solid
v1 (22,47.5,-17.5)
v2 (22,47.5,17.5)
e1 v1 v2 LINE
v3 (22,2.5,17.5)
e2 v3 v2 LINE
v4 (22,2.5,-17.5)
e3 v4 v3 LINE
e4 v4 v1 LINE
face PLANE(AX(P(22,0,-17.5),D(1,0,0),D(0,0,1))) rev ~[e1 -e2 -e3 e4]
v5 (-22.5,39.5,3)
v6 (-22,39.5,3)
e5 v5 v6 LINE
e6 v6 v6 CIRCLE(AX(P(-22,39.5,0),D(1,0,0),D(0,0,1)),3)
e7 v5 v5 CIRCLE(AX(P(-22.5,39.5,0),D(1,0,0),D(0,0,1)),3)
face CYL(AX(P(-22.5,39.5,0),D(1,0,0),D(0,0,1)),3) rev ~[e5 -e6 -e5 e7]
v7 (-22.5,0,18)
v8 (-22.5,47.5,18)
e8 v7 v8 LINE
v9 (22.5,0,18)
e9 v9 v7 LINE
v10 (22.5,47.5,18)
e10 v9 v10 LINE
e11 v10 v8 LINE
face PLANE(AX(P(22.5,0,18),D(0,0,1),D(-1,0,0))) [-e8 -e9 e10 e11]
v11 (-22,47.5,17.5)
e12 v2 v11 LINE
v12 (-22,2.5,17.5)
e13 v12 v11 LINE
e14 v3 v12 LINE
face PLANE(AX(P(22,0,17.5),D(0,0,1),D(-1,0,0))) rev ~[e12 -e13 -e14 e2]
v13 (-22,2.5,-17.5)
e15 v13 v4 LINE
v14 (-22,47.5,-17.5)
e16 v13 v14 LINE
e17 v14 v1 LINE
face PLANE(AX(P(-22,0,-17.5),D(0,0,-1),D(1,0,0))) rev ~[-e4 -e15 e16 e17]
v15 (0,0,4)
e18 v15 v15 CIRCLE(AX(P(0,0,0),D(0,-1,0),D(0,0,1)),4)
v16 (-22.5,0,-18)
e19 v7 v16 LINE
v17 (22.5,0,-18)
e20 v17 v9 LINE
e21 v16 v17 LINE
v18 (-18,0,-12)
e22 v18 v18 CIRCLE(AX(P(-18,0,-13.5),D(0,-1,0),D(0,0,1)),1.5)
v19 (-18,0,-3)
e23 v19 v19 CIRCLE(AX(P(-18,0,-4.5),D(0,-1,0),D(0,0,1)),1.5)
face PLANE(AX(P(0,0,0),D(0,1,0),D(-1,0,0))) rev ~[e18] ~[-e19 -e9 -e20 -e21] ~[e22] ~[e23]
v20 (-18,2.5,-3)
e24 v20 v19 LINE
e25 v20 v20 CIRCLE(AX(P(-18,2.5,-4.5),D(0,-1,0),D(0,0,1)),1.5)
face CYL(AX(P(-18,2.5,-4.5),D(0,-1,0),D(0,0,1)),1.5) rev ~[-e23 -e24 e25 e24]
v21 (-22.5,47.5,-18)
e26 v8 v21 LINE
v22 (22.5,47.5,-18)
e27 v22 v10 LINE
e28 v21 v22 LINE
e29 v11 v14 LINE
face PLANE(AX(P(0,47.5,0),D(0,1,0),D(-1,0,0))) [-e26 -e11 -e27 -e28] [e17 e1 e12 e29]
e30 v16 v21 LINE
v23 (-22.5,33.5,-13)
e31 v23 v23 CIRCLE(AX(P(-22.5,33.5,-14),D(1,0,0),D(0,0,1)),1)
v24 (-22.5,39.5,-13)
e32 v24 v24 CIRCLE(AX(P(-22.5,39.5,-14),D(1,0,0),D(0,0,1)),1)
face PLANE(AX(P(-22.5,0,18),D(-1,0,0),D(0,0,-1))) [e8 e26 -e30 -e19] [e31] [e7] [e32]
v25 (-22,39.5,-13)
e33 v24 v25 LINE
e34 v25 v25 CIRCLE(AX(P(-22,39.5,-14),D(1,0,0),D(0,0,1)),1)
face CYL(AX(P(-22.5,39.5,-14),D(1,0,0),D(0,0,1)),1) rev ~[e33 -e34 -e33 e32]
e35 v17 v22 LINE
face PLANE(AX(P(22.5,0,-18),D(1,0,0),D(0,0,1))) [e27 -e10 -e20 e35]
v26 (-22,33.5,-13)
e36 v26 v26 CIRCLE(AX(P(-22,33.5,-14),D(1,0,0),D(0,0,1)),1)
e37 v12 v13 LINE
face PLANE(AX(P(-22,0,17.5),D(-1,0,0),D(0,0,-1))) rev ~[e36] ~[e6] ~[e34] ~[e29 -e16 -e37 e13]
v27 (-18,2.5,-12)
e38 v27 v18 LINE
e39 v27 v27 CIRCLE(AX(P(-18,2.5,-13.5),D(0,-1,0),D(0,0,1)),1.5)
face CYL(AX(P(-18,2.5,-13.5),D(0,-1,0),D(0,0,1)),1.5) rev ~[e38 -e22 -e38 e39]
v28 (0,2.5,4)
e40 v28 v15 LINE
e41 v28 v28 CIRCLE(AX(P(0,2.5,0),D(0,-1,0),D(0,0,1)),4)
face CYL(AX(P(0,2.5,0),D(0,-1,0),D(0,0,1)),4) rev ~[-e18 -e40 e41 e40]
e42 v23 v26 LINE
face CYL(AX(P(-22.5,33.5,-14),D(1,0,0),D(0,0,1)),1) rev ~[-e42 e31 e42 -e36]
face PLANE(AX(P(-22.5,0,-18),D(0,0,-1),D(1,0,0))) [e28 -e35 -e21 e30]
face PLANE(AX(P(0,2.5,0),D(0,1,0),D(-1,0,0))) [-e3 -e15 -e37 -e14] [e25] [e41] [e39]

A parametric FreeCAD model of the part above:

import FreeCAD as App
import Part
import Sketcher

doc = App.newDocument("Part")
params = doc.addObject("Spreadsheet::Sheet", "Params")
for row, (alias, value) in enumerate([
    ("sketch1_width", "44 mm"),
    ("sketch1_height", "35 mm"),
    ("pad1_length", "2.5 mm"),
    ("sketch2_width", "45 mm"),
    ("sketch2_width2", "44 mm"),
    ("sketch2_height", "36 mm"),
    ("sketch2_height2", "35 mm"),
    ("pad2_length", "47.5 mm"),
    ("sketch3_diameter", "3 mm"),
    ("hole_diameter", "3 mm"),
    ("hole_depth", "8 mm"),
    ("sketch4_diameter", "8 mm"),
    ("hole2_diameter", "8 mm"),
    ("hole2_depth", "8 mm"),
    ("sketch5_diameter", "2 mm"),
    ("hole3_diameter", "2 mm"),
    ("hole3_depth", "8 mm"),
    ("sketch6_diameter", "6 mm"),
    ("hole4_diameter", "6 mm"),
    ("hole4_depth", "8 mm"),
], start=1):
    params.set(f"A{row}", alias)
    params.set(f"B{row}", "=" + value)
    params.setAlias(f"B{row}", alias)

body = doc.addObject("PartDesign::Body", "Body")

# Sketch on XZ plane
sketch1 = body.newObject("Sketcher::SketchObject", "Sketch")
sketch1.AttachmentSupport = (doc.getObject("XZ_Plane"), [""])
sketch1.MapMode = "FlatFace"
sketch1.addGeometry([
    Part.LineSegment(App.Vector(-22, 18, 0), App.Vector(22, 18, 0)),
    Part.LineSegment(App.Vector(22, 18, 0), App.Vector(22, -18, 0)),
    Part.LineSegment(App.Vector(22, -18, 0), App.Vector(-22, -18, 0)),
    Part.LineSegment(App.Vector(-22, -18, 0), App.Vector(-22, 18, 0)),
], False)
sketch1.addConstraint([
    Sketcher.Constraint("Coincident", 0, 2, 1, 1),
    Sketcher.Constraint("Coincident", 1, 2, 2, 1),
    Sketcher.Constraint("Coincident", 2, 2, 3, 1),
    Sketcher.Constraint("Coincident", 3, 2, 0, 1),
    Sketcher.Constraint("Horizontal", 0),
    Sketcher.Constraint("Vertical", 1),
    Sketcher.Constraint("Horizontal", 2),
    Sketcher.Constraint("Vertical", 3),
    Sketcher.Constraint("Symmetric", 0, 2, 2, 2, -1, 1),
    Sketcher.Constraint("DistanceX", 0, 1, 0, 2, 44.0),
    Sketcher.Constraint("DistanceY", 1, 2, 1, 1, 35.0),
])
sketch1.setExpression("Constraints[9]", "Params.sketch1_width")
sketch1.setExpression("Constraints[10]", "Params.sketch1_height")
pad1 = body.newObject("PartDesign::Pad", "Pad")
pad1.Profile = sketch1
pad1.setExpression("Length", "Params.pad1_length")
pad1.Reversed = True

# Sketch on XZ plane
sketch2 = body.newObject("Sketcher::SketchObject", "Sketch001")
sketch2.AttachmentSupport = (doc.getObject("XZ_Plane"), [""])
sketch2.MapMode = "FlatFace"
sketch2.addGeometry([
    Part.LineSegment(App.Vector(-22, 18, 0), App.Vector(22, 18, 0)),  # 0
    Part.LineSegment(App.Vector(22, 18, 0), App.Vector(22, -18, 0)),  # 1
    Part.LineSegment(App.Vector(22, -18, 0), App.Vector(-22, -18, 0)),  # 2
    Part.LineSegment(App.Vector(-22, -18, 0), App.Vector(-22, 18, 0)),  # 3
    Part.LineSegment(App.Vector(22, -18, 0), App.Vector(22, 18, 0)),  # 4
    Part.LineSegment(App.Vector(22, 18, 0), App.Vector(-22, 18, 0)),  # 5
    Part.LineSegment(App.Vector(-22, 18, 0), App.Vector(-22, -18, 0)),  # 6
    Part.LineSegment(App.Vector(-22, -18, 0), App.Vector(22, -18, 0)),  # 7
], False)
sketch2.addConstraint([
    Sketcher.Constraint("Coincident", 0, 2, 1, 1),
    Sketcher.Constraint("Coincident", 1, 2, 2, 1),
    Sketcher.Constraint("Coincident", 2, 2, 3, 1),
    Sketcher.Constraint("Coincident", 3, 2, 0, 1),
    Sketcher.Constraint("Coincident", 4, 2, 5, 1),
    Sketcher.Constraint("Coincident", 5, 2, 6, 1),
    Sketcher.Constraint("Coincident", 6, 2, 7, 1),
    Sketcher.Constraint("Coincident", 7, 2, 4, 1),
    Sketcher.Constraint("Horizontal", 0),
    Sketcher.Constraint("Vertical", 1),
    Sketcher.Constraint("Horizontal", 2),
    Sketcher.Constraint("Vertical", 3),
    Sketcher.Constraint("Vertical", 4),
    Sketcher.Constraint("Horizontal", 5),
    Sketcher.Constraint("Vertical", 6),
    Sketcher.Constraint("Horizontal", 7),
    Sketcher.Constraint("Symmetric", 0, 2, 2, 2, -1, 1),
    Sketcher.Constraint("Symmetric", 4, 2, 6, 2, -1, 1),
    Sketcher.Constraint("DistanceX", 0, 1, 0, 2, 45.0),
    Sketcher.Constraint("DistanceX", 5, 2, 5, 1, 44.0),
    Sketcher.Constraint("DistanceY", 1, 2, 1, 1, 36.0),
    Sketcher.Constraint("DistanceY", 4, 1, 4, 2, 35.0),
])
sketch2.setExpression("Constraints[18]", "Params.sketch2_width")
sketch2.setExpression("Constraints[19]", "Params.sketch2_width2")
sketch2.setExpression("Constraints[20]", "Params.sketch2_height")
sketch2.setExpression("Constraints[21]", "Params.sketch2_height2")
pad2 = body.newObject("PartDesign::Pad", "Pad001")
pad2.Profile = sketch2
pad2.setExpression("Length", "Params.pad2_length")
pad2.Reversed = True

# Sketch on XZ plane
sketch3 = body.newObject("Sketcher::SketchObject", "Sketch002")
sketch3.AttachmentSupport = (doc.getObject("XZ_Plane"), [""])
sketch3.MapMode = "FlatFace"
sketch3.AttachmentOffset = App.Placement(App.Vector(0, 0, -2.5), App.Rotation())
sketch3.addGeometry([
    Part.Circle(App.Vector(-18, -4.5, 0), App.Vector(0, 0, 1), 1.5),
    Part.Circle(App.Vector(-18, -13.5, 0), App.Vector(0, 0, 1), 1.5),
], False)
sketch3.addConstraint([
    Sketcher.Constraint("Equal", 0, 1),
    Sketcher.Constraint("Vertical", 0, 3, 1, 3),
    Sketcher.Constraint("Diameter", 0, 3.0),
    Sketcher.Constraint("DistanceX", 0, 3, -1, 1, 18.0),
    Sketcher.Constraint("DistanceY", 1, 3, 0, 3, 9.0),
    Sketcher.Constraint("DistanceY", 0, 3, -1, 1, 4.5),
])
sketch3.setExpression("Constraints[2]", "Params.sketch3_diameter")
doc.recompute()
hole = body.newObject("PartDesign::Hole", "Hole")
hole.Profile = sketch3
hole.ThreadType = "None"
hole.setExpression("Diameter", "Params.hole_diameter")
hole.DepthType = "Dimension"
hole.setExpression("Depth", "Params.hole_depth")
hole.DrillPoint = "Flat"
hole.Reversed = True

# Sketch on XZ plane
sketch4 = body.newObject("Sketcher::SketchObject", "Sketch003")
sketch4.AttachmentSupport = (doc.getObject("XZ_Plane"), [""])
sketch4.MapMode = "FlatFace"
sketch4.AttachmentOffset = App.Placement(App.Vector(0, 0, -2.5), App.Rotation())
sketch4.addGeometry(Part.Circle(App.Vector(0, 0, 0), App.Vector(0, 0, 1), 4), False)
sketch4.addConstraint([
    Sketcher.Constraint("Coincident", 0, 3, -1, 1),
    Sketcher.Constraint("Diameter", 0, 8.0),
])
sketch4.setExpression("Constraints[1]", "Params.sketch4_diameter")
doc.recompute()
hole2 = body.newObject("PartDesign::Hole", "Hole001")
hole2.Profile = sketch4
hole2.ThreadType = "None"
hole2.setExpression("Diameter", "Params.hole2_diameter")
hole2.DepthType = "Dimension"
hole2.setExpression("Depth", "Params.hole2_depth")
hole2.DrillPoint = "Flat"
hole2.Reversed = True

# Sketch on YZ plane
sketch5 = body.newObject("Sketcher::SketchObject", "Sketch004")
sketch5.AttachmentSupport = (doc.getObject("YZ_Plane"), [""])
sketch5.MapMode = "FlatFace"
sketch5.AttachmentOffset = App.Placement(App.Vector(0, 0, -22.5), App.Rotation())
sketch5.addGeometry([
    Part.Circle(App.Vector(33.5, -14, 0), App.Vector(0, 0, 1), 1),
    Part.Circle(App.Vector(39.5, -14, 0), App.Vector(0, 0, 1), 1),
], False)
sketch5.addConstraint([
    Sketcher.Constraint("Equal", 0, 1),
    Sketcher.Constraint("Horizontal", 0, 3, 1, 3),
    Sketcher.Constraint("Diameter", 0, 2.0),
    Sketcher.Constraint("DistanceY", 0, 3, -1, 1, 14.0),
    Sketcher.Constraint("DistanceX", 0, 3, 1, 3, 6.0),
    Sketcher.Constraint("DistanceX", -1, 1, 0, 3, 33.5),
])
sketch5.setExpression("Constraints[2]", "Params.sketch5_diameter")
doc.recompute()
hole3 = body.newObject("PartDesign::Hole", "Hole002")
hole3.Profile = sketch5
hole3.ThreadType = "None"
hole3.setExpression("Diameter", "Params.hole3_diameter")
hole3.DepthType = "Dimension"
hole3.setExpression("Depth", "Params.hole3_depth")
hole3.DrillPoint = "Flat"
hole3.Reversed = True

# Sketch on YZ plane
sketch6 = body.newObject("Sketcher::SketchObject", "Sketch005")
sketch6.AttachmentSupport = (doc.getObject("YZ_Plane"), [""])
sketch6.MapMode = "FlatFace"
sketch6.AttachmentOffset = App.Placement(App.Vector(0, 0, -22.5), App.Rotation())
sketch6.addGeometry(Part.Circle(App.Vector(39.5, 0, 0), App.Vector(0, 0, 1), 3), False)
sketch6.addConstraint([
    Sketcher.Constraint("PointOnObject", 0, 3, -1),
    Sketcher.Constraint("Diameter", 0, 6.0),
    Sketcher.Constraint("DistanceX", -1, 1, 0, 3, 39.5),
])
sketch6.setExpression("Constraints[1]", "Params.sketch6_diameter")
doc.recompute()
hole4 = body.newObject("PartDesign::Hole", "Hole003")
hole4.Profile = sketch6
hole4.ThreadType = "None"
hole4.setExpression("Diameter", "Params.hole4_diameter")
hole4.DepthType = "Dimension"
hole4.setExpression("Depth", "Params.hole4_depth")
hole4.DrillPoint = "Flat"
hole4.Reversed = True

doc.recompute()
